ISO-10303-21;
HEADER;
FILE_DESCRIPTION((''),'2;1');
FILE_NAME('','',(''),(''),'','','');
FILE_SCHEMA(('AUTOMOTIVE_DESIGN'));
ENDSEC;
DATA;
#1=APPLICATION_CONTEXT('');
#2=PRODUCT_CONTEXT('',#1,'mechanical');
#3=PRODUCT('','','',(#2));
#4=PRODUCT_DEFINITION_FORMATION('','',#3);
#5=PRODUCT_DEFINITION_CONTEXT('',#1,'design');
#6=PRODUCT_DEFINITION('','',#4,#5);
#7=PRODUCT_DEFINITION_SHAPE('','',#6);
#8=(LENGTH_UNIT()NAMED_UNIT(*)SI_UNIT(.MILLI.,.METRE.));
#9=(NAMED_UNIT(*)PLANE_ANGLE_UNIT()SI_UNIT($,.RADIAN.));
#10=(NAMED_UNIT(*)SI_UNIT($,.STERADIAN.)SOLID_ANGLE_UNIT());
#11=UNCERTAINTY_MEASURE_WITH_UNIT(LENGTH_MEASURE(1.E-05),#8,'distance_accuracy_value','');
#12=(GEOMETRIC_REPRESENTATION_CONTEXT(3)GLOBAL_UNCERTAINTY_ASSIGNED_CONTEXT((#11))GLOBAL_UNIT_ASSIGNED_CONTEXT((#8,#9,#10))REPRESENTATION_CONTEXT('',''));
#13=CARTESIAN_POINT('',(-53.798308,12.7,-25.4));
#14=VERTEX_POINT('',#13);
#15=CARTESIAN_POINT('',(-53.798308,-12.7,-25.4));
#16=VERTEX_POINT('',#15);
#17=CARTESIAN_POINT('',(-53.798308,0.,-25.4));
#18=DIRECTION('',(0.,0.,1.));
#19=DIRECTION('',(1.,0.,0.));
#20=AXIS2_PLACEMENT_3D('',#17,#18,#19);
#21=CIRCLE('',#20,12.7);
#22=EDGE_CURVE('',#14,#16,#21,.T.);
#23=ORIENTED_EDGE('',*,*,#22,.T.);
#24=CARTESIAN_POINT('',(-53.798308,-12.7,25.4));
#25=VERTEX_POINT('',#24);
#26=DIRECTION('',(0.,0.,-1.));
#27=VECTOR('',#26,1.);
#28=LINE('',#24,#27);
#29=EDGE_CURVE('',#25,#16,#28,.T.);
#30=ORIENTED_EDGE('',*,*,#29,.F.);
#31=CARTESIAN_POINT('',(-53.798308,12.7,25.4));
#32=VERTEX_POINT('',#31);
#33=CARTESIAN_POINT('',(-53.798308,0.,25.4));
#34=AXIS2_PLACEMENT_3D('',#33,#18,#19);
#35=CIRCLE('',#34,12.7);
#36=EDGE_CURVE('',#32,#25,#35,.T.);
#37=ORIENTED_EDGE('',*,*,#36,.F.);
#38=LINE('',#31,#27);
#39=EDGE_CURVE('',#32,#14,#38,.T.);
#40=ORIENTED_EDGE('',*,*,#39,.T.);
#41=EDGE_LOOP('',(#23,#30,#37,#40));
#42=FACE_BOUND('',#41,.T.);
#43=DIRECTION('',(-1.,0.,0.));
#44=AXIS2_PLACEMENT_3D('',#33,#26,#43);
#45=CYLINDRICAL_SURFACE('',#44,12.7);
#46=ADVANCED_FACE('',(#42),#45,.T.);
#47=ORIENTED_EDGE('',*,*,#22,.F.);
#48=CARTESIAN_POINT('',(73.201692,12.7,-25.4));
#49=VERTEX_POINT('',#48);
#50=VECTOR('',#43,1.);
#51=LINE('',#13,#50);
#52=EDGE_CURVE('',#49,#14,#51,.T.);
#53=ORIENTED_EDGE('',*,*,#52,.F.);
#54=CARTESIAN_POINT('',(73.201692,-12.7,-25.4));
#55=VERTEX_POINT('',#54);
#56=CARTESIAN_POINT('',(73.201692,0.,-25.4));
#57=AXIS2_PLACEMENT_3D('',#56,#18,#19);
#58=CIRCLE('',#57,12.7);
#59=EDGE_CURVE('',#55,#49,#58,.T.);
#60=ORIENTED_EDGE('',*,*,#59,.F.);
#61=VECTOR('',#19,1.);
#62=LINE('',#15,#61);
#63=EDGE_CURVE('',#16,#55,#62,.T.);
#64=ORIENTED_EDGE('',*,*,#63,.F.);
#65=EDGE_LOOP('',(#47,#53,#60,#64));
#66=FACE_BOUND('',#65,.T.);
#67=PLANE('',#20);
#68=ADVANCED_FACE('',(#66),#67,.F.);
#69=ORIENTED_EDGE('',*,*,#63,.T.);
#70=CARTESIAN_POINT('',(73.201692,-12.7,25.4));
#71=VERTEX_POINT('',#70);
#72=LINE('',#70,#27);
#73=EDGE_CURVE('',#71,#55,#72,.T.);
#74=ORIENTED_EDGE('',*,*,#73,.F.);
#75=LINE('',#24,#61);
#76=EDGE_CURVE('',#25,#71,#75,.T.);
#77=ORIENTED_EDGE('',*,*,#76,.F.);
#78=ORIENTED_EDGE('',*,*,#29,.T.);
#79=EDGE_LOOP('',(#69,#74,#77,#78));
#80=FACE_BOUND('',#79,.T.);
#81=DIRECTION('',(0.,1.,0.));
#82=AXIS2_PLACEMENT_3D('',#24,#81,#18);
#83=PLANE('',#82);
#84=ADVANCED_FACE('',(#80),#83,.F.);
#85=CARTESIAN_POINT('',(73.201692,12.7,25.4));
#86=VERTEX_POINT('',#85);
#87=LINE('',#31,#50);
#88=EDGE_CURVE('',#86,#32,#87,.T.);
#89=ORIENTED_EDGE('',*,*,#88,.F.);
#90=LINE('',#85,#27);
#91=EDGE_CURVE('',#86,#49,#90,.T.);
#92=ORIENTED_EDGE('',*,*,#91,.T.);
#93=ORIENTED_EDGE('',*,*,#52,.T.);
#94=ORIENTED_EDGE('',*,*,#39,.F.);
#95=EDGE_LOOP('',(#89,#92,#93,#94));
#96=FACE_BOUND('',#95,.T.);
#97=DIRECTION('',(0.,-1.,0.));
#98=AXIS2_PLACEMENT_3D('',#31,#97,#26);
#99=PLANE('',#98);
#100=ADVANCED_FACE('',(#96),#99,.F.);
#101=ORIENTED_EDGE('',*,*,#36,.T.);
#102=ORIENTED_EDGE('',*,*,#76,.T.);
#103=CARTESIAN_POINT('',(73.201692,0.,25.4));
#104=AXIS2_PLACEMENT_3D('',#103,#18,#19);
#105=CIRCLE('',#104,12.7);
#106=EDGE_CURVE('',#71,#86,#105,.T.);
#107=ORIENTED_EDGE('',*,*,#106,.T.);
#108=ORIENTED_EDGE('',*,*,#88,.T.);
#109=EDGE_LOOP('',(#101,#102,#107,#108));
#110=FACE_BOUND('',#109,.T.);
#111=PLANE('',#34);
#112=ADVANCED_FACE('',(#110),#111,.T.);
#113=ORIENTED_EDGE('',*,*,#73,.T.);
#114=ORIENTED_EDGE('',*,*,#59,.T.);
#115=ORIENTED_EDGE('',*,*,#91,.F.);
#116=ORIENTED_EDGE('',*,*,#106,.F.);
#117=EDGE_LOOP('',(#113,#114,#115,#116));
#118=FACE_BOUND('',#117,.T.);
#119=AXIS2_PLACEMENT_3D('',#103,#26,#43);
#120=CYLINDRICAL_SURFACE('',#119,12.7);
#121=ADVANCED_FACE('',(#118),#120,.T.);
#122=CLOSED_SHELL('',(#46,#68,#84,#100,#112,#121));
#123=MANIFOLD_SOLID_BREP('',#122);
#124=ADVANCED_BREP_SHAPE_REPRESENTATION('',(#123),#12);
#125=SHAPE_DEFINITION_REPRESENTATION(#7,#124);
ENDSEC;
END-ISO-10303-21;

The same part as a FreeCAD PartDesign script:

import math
import FreeCAD as App
import Part
import Sketcher
from FreeCAD import Vector
Q = App.Units.Quantity

doc = App.newDocument("Part")
body = doc.addObject("PartDesign::Body", "Body")

# Sketch on XY plane
sketch1 = body.newObject("Sketcher::SketchObject", "Sketch")
sketch1.AttachmentSupport = (doc.getObject("XY_Plane"), [""])
sketch1.MapMode = "FlatFace"
sketch1.addGeometry([
    Part.LineSegment(Vector(73, 13, 0), Vector(-54, 13, 0)),
    Part.ArcOfCircle(Part.Circle(Vector(-54, 0, 0), Vector(0, 0, 1), 13), math.radians(90), math.radians(270)),
    Part.LineSegment(Vector(-54, -13, 0), Vector(73, -13, 0)),
    Part.ArcOfCircle(Part.Circle(Vector(73, 0, 0), Vector(0, 0, 1), 13), math.radians(-90), math.radians(90)),
], False)
sketch1.addConstraint([
    Sketcher.Constraint("Tangent", 0, 2, 1, 1),
    Sketcher.Constraint("Tangent", 1, 2, 2, 1),
    Sketcher.Constraint("Tangent", 2, 2, 3, 1),
    Sketcher.Constraint("Tangent", 3, 2, 0, 1),
    Sketcher.Constraint("Horizontal", 0),
    Sketcher.Constraint("Horizontal", 2),
    Sketcher.Constraint("PointOnObject", 1, 3, -1),
    Sketcher.Constraint("Radius", 1, Q("0.5 in")),
    Sketcher.Constraint("DistanceX", 0, 2, 0, 1, Q("5 in")),
    Sketcher.Constraint("DistanceX", 1, 3, -1, 1, 53.798308),
])
pad1 = body.newObject("PartDesign::Pad", "Pad")
pad1.Profile = sketch1
pad1.Length = Q("2 in")
pad1.Midplane = True

doc.recompute()
